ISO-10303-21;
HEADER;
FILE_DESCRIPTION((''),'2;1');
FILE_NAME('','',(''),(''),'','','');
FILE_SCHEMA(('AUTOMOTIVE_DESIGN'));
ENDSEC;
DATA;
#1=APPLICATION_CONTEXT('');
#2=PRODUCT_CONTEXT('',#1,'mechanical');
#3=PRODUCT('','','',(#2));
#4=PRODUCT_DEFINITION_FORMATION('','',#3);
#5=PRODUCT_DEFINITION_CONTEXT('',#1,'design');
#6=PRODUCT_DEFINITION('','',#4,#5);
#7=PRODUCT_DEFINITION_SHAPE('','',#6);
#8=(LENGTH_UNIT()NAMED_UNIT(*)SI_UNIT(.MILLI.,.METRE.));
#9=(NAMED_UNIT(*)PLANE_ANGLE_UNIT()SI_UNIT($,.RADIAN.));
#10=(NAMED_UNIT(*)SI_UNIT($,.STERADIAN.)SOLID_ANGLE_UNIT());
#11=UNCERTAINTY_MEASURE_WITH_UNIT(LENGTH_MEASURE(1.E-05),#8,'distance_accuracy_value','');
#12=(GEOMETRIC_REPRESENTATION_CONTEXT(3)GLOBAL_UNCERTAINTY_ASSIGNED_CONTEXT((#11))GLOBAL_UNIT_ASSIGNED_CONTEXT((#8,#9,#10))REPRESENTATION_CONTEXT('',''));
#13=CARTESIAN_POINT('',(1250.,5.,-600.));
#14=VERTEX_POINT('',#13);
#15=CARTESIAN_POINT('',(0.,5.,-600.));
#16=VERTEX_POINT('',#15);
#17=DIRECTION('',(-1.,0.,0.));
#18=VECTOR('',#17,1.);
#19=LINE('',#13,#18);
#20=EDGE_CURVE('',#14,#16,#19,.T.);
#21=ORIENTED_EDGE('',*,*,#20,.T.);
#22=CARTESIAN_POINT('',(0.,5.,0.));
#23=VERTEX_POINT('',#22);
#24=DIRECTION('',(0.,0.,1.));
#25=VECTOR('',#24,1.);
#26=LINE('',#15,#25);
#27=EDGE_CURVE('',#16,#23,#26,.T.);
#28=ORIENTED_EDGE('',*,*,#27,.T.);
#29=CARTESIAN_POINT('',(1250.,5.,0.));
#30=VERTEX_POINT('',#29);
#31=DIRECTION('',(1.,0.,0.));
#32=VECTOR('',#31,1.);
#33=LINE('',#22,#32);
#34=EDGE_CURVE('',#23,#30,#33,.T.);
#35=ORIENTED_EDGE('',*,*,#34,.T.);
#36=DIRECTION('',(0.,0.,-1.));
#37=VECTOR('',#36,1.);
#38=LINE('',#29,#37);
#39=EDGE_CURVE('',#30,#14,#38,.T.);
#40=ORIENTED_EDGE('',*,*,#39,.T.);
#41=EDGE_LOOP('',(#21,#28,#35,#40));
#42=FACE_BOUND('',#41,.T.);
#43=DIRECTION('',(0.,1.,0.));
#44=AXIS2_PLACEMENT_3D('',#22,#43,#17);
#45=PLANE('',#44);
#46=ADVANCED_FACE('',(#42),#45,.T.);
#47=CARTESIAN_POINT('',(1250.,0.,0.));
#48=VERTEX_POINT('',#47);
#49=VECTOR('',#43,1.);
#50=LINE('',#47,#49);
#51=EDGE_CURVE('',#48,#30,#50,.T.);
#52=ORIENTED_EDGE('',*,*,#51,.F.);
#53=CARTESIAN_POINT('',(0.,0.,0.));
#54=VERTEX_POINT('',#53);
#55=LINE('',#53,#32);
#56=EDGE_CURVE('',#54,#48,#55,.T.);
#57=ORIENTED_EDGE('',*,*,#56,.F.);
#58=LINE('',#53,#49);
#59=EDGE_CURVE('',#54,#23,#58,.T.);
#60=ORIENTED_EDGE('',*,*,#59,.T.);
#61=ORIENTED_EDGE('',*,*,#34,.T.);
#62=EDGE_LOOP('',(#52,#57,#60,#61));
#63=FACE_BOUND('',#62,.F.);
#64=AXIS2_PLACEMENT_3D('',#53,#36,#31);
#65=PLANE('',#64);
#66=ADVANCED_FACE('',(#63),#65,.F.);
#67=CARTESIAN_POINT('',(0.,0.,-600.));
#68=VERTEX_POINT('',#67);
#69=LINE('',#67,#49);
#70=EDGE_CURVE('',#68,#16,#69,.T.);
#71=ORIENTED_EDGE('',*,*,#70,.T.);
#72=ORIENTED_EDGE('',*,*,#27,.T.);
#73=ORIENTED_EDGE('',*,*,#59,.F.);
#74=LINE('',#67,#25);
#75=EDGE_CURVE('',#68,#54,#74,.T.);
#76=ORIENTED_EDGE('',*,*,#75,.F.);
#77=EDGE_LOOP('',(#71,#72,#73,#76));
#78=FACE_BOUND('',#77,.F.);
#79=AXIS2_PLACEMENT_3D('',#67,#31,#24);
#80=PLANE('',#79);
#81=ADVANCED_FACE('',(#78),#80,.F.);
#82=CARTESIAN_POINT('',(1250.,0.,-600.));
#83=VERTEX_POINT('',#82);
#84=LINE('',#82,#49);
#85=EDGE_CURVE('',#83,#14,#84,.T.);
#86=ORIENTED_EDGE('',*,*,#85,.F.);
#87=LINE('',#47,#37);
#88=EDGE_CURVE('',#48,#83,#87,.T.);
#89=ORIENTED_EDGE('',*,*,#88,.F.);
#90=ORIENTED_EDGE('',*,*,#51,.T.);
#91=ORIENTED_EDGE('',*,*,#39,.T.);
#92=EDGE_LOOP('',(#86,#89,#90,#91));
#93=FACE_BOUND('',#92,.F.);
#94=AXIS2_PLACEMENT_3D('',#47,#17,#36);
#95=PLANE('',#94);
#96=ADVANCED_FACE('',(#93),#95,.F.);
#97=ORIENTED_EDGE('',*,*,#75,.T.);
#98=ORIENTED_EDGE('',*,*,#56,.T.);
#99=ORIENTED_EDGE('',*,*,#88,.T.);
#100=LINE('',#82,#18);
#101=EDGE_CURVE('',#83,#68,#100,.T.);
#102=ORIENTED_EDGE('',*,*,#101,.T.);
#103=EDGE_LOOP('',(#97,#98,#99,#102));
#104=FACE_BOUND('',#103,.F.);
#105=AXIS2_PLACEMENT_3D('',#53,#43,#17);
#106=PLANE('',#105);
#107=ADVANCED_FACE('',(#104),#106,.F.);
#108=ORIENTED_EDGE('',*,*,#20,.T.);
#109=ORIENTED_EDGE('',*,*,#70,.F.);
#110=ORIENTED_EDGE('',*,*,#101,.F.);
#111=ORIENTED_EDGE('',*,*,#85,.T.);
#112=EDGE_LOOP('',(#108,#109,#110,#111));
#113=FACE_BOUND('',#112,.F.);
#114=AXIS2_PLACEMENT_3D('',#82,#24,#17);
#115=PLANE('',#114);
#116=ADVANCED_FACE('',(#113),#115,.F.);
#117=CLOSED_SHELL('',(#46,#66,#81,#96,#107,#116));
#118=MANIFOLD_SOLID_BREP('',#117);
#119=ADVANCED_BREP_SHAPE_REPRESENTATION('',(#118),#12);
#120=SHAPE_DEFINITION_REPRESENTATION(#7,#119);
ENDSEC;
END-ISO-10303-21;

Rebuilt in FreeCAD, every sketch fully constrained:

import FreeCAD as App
import Part
import Sketcher
from FreeCAD import Vector

doc = App.newDocument("Part")
body = doc.addObject("PartDesign::Body", "Body")

# Sketch on XZ plane
sketch1 = doc.addObject("Sketcher::SketchObject", "Sketch")
body.addObject(sketch1)
sketch1.AttachmentSupport = (doc.XZ_Plane, [""])
sketch1.MapMode = "FlatFace"
sketch1.addGeometry(Part.LineSegment(Vector(0, -600, 0), Vector(0, 0, 0)), False)
sketch1.addGeometry(Part.LineSegment(Vector(0, 0, 0), Vector(1250, 0, 0)), False)
sketch1.addGeometry(Part.LineSegment(Vector(1250, 0, 0), Vector(1250, -600, 0)), False)
sketch1.addGeometry(Part.LineSegment(Vector(1250, -600, 0), Vector(0, -600, 0)), False)
sketch1.addConstraint(Sketcher.Constraint("Coincident", 0, 2, 1, 1))
sketch1.addConstraint(Sketcher.Constraint("Coincident", 1, 2, 2, 1))
sketch1.addConstraint(Sketcher.Constraint("Coincident", 2, 2, 3, 1))
sketch1.addConstraint(Sketcher.Constraint("Coincident", 3, 2, 0, 1))
sketch1.addConstraint(Sketcher.Constraint("Vertical", 0))
sketch1.addConstraint(Sketcher.Constraint("Horizontal", 1))
sketch1.addConstraint(Sketcher.Constraint("Vertical", 2))
sketch1.addConstraint(Sketcher.Constraint("Horizontal", 3))
sketch1.addConstraint(Sketcher.Constraint("Coincident", 0, 2, -1, 1))
sketch1.addConstraint(Sketcher.Constraint("DistanceX", 1, 1, 1, 2, 1250.0))
sketch1.addConstraint(Sketcher.Constraint("DistanceY", 0, 1, 0, 2, 600.0))
pad1 = doc.addObject("PartDesign::Pad", "Pad")
body.addObject(pad1)
pad1.Profile = sketch1
pad1.Length = 5
pad1.Reversed = True

doc.recompute()
